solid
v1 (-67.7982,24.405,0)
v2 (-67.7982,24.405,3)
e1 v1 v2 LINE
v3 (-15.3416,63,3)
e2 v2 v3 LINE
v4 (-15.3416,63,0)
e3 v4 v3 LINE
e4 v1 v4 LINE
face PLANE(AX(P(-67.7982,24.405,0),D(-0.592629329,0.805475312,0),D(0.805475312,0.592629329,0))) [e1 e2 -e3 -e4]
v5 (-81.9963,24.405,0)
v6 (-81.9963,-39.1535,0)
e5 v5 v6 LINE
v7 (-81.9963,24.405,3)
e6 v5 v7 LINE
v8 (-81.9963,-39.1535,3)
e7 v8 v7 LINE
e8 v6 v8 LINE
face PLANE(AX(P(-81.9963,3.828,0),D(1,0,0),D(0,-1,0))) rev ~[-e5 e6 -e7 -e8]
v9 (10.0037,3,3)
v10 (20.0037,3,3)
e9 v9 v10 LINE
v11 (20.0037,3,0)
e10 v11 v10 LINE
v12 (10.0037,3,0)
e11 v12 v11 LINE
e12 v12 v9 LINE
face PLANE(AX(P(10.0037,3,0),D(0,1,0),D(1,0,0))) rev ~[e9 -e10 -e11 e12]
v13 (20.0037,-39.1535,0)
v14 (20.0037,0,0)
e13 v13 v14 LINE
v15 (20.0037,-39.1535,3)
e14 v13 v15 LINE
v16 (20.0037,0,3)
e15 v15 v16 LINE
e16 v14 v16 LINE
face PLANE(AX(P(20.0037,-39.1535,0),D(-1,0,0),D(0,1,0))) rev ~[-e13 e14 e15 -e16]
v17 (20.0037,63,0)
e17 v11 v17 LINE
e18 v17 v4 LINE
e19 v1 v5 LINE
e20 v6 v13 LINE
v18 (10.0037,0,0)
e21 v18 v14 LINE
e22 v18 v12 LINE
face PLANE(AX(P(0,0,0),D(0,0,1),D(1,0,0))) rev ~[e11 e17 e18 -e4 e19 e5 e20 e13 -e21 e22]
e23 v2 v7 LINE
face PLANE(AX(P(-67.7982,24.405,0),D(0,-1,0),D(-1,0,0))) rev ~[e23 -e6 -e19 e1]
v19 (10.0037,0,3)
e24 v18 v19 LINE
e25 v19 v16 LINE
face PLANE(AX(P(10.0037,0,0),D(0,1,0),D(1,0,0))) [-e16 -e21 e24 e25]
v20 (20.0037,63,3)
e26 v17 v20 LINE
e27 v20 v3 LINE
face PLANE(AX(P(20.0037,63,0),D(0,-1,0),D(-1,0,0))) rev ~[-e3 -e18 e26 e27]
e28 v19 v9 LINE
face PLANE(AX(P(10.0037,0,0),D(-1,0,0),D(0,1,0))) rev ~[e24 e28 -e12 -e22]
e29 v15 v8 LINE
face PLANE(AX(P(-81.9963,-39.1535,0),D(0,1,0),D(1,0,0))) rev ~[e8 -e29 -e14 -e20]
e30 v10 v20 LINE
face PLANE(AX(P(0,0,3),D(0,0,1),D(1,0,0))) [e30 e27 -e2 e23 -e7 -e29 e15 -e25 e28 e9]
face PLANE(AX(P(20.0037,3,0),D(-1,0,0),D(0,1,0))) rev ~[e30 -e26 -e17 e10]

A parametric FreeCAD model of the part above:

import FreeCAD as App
import Part
import Sketcher
from FreeCAD import Vector

doc = App.newDocument("Part")
params = doc.addObject("Spreadsheet::Sheet", "Params")
for row, (alias, value) in enumerate([
    ("sketch1_width", "102 mm"),
    ("sketch1_width2", "10 mm"),
    ("sketch1_height", "3 mm"),
    ("sketch1_height2", "60 mm"),
    ("pad1_length", "3 mm"),
], start=1):
    params.set(f"A{row}", alias)
    params.set(f"B{row}", "=" + value)
    params.setAlias(f"B{row}", alias)

body = doc.addObject("PartDesign::Body", "Body")

sketch1 = body.newObject("Sketcher::SketchObject", "Sketch")
sketch1.AttachmentSupport = (doc.getObject("XY_Plane"), [""])
sketch1.MapMode = "FlatFace"
sketch1.addGeometry(Part.LineSegment(Vector(-82, -39.2, 0), Vector(20, -39.2, 0)), False)
sketch1.addGeometry(Part.LineSegment(Vector(20, -39.2, 0), Vector(20, 0, 0)), False)
sketch1.addGeometry(Part.LineSegment(Vector(20, 0, 0), Vector(10, 0, 0)), False)
sketch1.addGeometry(Part.LineSegment(Vector(10, 0, 0), Vector(10, 3, 0)), False)
sketch1.addGeometry(Part.LineSegment(Vector(10, 3, 0), Vector(20, 3, 0)), False)
sketch1.addGeometry(Part.LineSegment(Vector(20, 3, 0), Vector(20, 63, 0)), False)
sketch1.addGeometry(Part.LineSegment(Vector(20, 63, 0), Vector(-15.3, 63, 0)), False)
sketch1.addGeometry(Part.LineSegment(Vector(-15.3, 63, 0), Vector(-67.8, 24.4, 0)), False)
sketch1.addGeometry(Part.LineSegment(Vector(-67.8, 24.4, 0), Vector(-82, 24.4, 0)), False)
sketch1.addGeometry(Part.LineSegment(Vector(-82, 24.4, 0), Vector(-82, -39.2, 0)), False)
sketch1.addConstraint(Sketcher.Constraint("Coincident", 0, 2, 1, 1))
sketch1.addConstraint(Sketcher.Constraint("Coincident", 1, 2, 2, 1))
sketch1.addConstraint(Sketcher.Constraint("Coincident", 2, 2, 3, 1))
sketch1.addConstraint(Sketcher.Constraint("Coincident", 3, 2, 4, 1))
sketch1.addConstraint(Sketcher.Constraint("Coincident", 4, 2, 5, 1))
sketch1.addConstraint(Sketcher.Constraint("Coincident", 5, 2, 6, 1))
sketch1.addConstraint(Sketcher.Constraint("Coincident", 6, 2, 7, 1))
sketch1.addConstraint(Sketcher.Constraint("Coincident", 7, 2, 8, 1))
sketch1.addConstraint(Sketcher.Constraint("Coincident", 8, 2, 9, 1))
sketch1.addConstraint(Sketcher.Constraint("Coincident", 9, 2, 0, 1))
sketch1.addConstraint(Sketcher.Constraint("Horizontal", 0))
sketch1.addConstraint(Sketcher.Constraint("Vertical", 1))
sketch1.addConstraint(Sketcher.Constraint("Horizontal", 2))
sketch1.addConstraint(Sketcher.Constraint("Vertical", 3))
sketch1.addConstraint(Sketcher.Constraint("Horizontal", 4))
sketch1.addConstraint(Sketcher.Constraint("Vertical", 5))
sketch1.addConstraint(Sketcher.Constraint("Horizontal", 6))
sketch1.addConstraint(Sketcher.Constraint("Horizontal", 8))
sketch1.addConstraint(Sketcher.Constraint("Vertical", 9))
sketch1.addConstraint(Sketcher.Constraint("PointOnObject", 1, 2, -1))
sketch1.addConstraint(Sketcher.Constraint("Vertical", 1, 2, 4, 2))
sketch1.addConstraint(Sketcher.Constraint("DistanceX", 0, 1, 0, 2, 102.0))
sketch1.addConstraint(Sketcher.Constraint("DistanceX", 2, 2, 2, 1, 10.0))
sketch1.addConstraint(Sketcher.Constraint("DistanceY", 3, 1, 3, 2, 3.0))
sketch1.addConstraint(Sketcher.Constraint("DistanceY", 5, 1, 5, 2, 60.0))
sketch1.addConstraint(Sketcher.Constraint("DistanceX", 6, 2, 6, 1, 35.3453))
sketch1.addConstraint(Sketcher.Constraint("DistanceX", 7, 2, 4, 2, 87.802))
sketch1.addConstraint(Sketcher.Constraint("Distance", 7, 65.125))
sketch1.addConstraint(Sketcher.Constraint("DistanceY", 1, 1, 1, 2, 39.1535))
sketch1.addConstraint(Sketcher.Constraint("DistanceX", -1, 1, 0, 2, 20.0037))
sketch1.setExpression("Constraints[21]", "Params.sketch1_width")
sketch1.setExpression("Constraints[22]", "Params.sketch1_width2")
sketch1.setExpression("Constraints[23]", "Params.sketch1_height")
sketch1.setExpression("Constraints[24]", "Params.sketch1_height2")
pad1 = body.newObject("PartDesign::Pad", "Pad")
pad1.Profile = sketch1
pad1.setExpression("Length", "Params.pad1_length")

doc.recompute()
